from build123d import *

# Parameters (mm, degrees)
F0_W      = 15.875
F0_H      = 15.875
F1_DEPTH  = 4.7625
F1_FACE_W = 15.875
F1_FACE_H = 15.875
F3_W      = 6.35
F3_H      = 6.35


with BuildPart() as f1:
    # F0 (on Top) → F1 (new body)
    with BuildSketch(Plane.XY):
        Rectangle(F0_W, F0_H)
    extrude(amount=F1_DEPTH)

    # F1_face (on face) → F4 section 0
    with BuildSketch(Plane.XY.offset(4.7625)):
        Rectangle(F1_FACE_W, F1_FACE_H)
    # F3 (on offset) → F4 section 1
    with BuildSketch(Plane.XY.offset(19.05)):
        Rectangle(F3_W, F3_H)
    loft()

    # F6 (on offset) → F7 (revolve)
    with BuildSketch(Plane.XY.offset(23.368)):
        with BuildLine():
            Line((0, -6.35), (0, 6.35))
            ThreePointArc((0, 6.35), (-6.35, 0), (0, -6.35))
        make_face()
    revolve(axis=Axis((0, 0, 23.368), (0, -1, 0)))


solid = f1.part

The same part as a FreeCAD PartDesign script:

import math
import FreeCAD as App
import Part
import Sketcher

V = App.Vector
Q = App.Units.Quantity


def add_polygon(sketch, points):
    """Adds a closed chain of lines whose ends are joined by coincident constraints."""
    first, n = sketch.GeometryCount, len(points)
    for a, b in zip(points, points[1:] + points[:1]):
        sketch.addGeometry(Part.LineSegment(App.Vector(*a, 0), App.Vector(*b, 0)), False)
    for i in range(n):
        sketch.addConstraint(Sketcher.Constraint("Coincident", first + i, 2, first + (i + 1) % n, 1))

doc = App.newDocument("Part")
body = doc.addObject("PartDesign::Body", "Body")

# Sketch on XY plane
sketch1 = body.newObject("Sketcher::SketchObject", "Sketch")
sketch1.AttachmentSupport = (doc.getObject("XY_Plane"), [""])
sketch1.MapMode = "FlatFace"
add_polygon(sketch1, [(-8, 8), (-8, -8), (8, -8), (8, 8)])  # lines 0-3
sketch1.addConstraint([
    Sketcher.Constraint("Vertical", 0),
    Sketcher.Constraint("Horizontal", 1),
    Sketcher.Constraint("Vertical", 2),
    Sketcher.Constraint("Horizontal", 3),
    Sketcher.Constraint("Symmetric", 0, 2, 2, 2, -1, 1),
    Sketcher.Constraint("Equal", 3, 0),
    Sketcher.Constraint("DistanceX", 1, 1, 1, 2, Q("0.625 in")),
])
pad1 = body.newObject("PartDesign::Pad", "Pad")
pad1.Profile = sketch1
pad1.Length = Q("0.1875 in")

# Sketch on XY plane
sketch2 = body.newObject("Sketcher::SketchObject", "Sketch001")
sketch2.AttachmentSupport = (doc.getObject("XY_Plane"), [""])
sketch2.MapMode = "FlatFace"
sketch2.AttachmentOffset = App.Placement(V(0, 0, 0.1875 * 25.4), App.Rotation())
add_polygon(sketch2, [(-8, 8), (-8, -8), (8, -8), (8, 8)])  # lines 0-3
sketch2.addConstraint([
    Sketcher.Constraint("Vertical", 0),
    Sketcher.Constraint("Horizontal", 1),
    Sketcher.Constraint("Vertical", 2),
    Sketcher.Constraint("Horizontal", 3),
    Sketcher.Constraint("Symmetric", 0, 2, 2, 2, -1, 1),
    Sketcher.Constraint("Equal", 3, 0),
    Sketcher.Constraint("DistanceX", 1, 1, 1, 2, Q("0.625 in")),
])

# Sketch on XY plane
sketch3 = body.newObject("Sketcher::SketchObject", "Sketch002")
sketch3.AttachmentSupport = (doc.getObject("XY_Plane"), [""])
sketch3.MapMode = "FlatFace"
sketch3.AttachmentOffset = App.Placement(V(0, 0, 0.75 * 25.4), App.Rotation())
add_polygon(sketch3, [(-3, 3), (-3, -3), (3, -3), (3, 3)])  # lines 0-3
sketch3.addConstraint([
    Sketcher.Constraint("Vertical", 0),
    Sketcher.Constraint("Horizontal", 1),
    Sketcher.Constraint("Vertical", 2),
    Sketcher.Constraint("Horizontal", 3),
    Sketcher.Constraint("Symmetric", 0, 2, 2, 2, -1, 1),
    Sketcher.Constraint("Equal", 3, 0),
    Sketcher.Constraint("DistanceX", 1, 1, 1, 2, Q("0.25 in")),
])

additiveloft = body.newObject("PartDesign::AdditiveLoft", "AdditiveLoft")
additiveloft.Profile = sketch2
additiveloft.Sections = [sketch3]

# Sketch on XY plane
sketch4 = body.newObject("Sketcher::SketchObject", "Sketch003")
sketch4.AttachmentSupport = (doc.getObject("XY_Plane"), [""])
sketch4.MapMode = "FlatFace"
sketch4.AttachmentOffset = App.Placement(V(0, 0, 0.92 * 25.4), App.Rotation())
sketch4.addGeometry([
    Part.LineSegment(V(0, -6, 0), V(0, 6, 0)),
    Part.ArcOfCircle(Part.Circle(V(0, 0, 0), V(0, 0, 1), 6), math.radians(90), math.radians(270)),
], False)
sketch4.addConstraint([
    Sketcher.Constraint("Coincident", 0, 1, 1, 2),
    Sketcher.Constraint("Coincident", 1, 1, 0, 2),
    Sketcher.Constraint("Vertical", 0),
    Sketcher.Constraint("Coincident", 1, 3, -1, 1),
    Sketcher.Constraint("PointOnObject", 0, 1, -2),
    Sketcher.Constraint("Radius", 1, Q("0.25 in")),
])
revolution = body.newObject("PartDesign::Revolution", "Revolution")
revolution.Profile = sketch4
revolution.ReferenceAxis = (sketch4, ["V_Axis"])
revolution.Angle = 360

doc.recompute()
